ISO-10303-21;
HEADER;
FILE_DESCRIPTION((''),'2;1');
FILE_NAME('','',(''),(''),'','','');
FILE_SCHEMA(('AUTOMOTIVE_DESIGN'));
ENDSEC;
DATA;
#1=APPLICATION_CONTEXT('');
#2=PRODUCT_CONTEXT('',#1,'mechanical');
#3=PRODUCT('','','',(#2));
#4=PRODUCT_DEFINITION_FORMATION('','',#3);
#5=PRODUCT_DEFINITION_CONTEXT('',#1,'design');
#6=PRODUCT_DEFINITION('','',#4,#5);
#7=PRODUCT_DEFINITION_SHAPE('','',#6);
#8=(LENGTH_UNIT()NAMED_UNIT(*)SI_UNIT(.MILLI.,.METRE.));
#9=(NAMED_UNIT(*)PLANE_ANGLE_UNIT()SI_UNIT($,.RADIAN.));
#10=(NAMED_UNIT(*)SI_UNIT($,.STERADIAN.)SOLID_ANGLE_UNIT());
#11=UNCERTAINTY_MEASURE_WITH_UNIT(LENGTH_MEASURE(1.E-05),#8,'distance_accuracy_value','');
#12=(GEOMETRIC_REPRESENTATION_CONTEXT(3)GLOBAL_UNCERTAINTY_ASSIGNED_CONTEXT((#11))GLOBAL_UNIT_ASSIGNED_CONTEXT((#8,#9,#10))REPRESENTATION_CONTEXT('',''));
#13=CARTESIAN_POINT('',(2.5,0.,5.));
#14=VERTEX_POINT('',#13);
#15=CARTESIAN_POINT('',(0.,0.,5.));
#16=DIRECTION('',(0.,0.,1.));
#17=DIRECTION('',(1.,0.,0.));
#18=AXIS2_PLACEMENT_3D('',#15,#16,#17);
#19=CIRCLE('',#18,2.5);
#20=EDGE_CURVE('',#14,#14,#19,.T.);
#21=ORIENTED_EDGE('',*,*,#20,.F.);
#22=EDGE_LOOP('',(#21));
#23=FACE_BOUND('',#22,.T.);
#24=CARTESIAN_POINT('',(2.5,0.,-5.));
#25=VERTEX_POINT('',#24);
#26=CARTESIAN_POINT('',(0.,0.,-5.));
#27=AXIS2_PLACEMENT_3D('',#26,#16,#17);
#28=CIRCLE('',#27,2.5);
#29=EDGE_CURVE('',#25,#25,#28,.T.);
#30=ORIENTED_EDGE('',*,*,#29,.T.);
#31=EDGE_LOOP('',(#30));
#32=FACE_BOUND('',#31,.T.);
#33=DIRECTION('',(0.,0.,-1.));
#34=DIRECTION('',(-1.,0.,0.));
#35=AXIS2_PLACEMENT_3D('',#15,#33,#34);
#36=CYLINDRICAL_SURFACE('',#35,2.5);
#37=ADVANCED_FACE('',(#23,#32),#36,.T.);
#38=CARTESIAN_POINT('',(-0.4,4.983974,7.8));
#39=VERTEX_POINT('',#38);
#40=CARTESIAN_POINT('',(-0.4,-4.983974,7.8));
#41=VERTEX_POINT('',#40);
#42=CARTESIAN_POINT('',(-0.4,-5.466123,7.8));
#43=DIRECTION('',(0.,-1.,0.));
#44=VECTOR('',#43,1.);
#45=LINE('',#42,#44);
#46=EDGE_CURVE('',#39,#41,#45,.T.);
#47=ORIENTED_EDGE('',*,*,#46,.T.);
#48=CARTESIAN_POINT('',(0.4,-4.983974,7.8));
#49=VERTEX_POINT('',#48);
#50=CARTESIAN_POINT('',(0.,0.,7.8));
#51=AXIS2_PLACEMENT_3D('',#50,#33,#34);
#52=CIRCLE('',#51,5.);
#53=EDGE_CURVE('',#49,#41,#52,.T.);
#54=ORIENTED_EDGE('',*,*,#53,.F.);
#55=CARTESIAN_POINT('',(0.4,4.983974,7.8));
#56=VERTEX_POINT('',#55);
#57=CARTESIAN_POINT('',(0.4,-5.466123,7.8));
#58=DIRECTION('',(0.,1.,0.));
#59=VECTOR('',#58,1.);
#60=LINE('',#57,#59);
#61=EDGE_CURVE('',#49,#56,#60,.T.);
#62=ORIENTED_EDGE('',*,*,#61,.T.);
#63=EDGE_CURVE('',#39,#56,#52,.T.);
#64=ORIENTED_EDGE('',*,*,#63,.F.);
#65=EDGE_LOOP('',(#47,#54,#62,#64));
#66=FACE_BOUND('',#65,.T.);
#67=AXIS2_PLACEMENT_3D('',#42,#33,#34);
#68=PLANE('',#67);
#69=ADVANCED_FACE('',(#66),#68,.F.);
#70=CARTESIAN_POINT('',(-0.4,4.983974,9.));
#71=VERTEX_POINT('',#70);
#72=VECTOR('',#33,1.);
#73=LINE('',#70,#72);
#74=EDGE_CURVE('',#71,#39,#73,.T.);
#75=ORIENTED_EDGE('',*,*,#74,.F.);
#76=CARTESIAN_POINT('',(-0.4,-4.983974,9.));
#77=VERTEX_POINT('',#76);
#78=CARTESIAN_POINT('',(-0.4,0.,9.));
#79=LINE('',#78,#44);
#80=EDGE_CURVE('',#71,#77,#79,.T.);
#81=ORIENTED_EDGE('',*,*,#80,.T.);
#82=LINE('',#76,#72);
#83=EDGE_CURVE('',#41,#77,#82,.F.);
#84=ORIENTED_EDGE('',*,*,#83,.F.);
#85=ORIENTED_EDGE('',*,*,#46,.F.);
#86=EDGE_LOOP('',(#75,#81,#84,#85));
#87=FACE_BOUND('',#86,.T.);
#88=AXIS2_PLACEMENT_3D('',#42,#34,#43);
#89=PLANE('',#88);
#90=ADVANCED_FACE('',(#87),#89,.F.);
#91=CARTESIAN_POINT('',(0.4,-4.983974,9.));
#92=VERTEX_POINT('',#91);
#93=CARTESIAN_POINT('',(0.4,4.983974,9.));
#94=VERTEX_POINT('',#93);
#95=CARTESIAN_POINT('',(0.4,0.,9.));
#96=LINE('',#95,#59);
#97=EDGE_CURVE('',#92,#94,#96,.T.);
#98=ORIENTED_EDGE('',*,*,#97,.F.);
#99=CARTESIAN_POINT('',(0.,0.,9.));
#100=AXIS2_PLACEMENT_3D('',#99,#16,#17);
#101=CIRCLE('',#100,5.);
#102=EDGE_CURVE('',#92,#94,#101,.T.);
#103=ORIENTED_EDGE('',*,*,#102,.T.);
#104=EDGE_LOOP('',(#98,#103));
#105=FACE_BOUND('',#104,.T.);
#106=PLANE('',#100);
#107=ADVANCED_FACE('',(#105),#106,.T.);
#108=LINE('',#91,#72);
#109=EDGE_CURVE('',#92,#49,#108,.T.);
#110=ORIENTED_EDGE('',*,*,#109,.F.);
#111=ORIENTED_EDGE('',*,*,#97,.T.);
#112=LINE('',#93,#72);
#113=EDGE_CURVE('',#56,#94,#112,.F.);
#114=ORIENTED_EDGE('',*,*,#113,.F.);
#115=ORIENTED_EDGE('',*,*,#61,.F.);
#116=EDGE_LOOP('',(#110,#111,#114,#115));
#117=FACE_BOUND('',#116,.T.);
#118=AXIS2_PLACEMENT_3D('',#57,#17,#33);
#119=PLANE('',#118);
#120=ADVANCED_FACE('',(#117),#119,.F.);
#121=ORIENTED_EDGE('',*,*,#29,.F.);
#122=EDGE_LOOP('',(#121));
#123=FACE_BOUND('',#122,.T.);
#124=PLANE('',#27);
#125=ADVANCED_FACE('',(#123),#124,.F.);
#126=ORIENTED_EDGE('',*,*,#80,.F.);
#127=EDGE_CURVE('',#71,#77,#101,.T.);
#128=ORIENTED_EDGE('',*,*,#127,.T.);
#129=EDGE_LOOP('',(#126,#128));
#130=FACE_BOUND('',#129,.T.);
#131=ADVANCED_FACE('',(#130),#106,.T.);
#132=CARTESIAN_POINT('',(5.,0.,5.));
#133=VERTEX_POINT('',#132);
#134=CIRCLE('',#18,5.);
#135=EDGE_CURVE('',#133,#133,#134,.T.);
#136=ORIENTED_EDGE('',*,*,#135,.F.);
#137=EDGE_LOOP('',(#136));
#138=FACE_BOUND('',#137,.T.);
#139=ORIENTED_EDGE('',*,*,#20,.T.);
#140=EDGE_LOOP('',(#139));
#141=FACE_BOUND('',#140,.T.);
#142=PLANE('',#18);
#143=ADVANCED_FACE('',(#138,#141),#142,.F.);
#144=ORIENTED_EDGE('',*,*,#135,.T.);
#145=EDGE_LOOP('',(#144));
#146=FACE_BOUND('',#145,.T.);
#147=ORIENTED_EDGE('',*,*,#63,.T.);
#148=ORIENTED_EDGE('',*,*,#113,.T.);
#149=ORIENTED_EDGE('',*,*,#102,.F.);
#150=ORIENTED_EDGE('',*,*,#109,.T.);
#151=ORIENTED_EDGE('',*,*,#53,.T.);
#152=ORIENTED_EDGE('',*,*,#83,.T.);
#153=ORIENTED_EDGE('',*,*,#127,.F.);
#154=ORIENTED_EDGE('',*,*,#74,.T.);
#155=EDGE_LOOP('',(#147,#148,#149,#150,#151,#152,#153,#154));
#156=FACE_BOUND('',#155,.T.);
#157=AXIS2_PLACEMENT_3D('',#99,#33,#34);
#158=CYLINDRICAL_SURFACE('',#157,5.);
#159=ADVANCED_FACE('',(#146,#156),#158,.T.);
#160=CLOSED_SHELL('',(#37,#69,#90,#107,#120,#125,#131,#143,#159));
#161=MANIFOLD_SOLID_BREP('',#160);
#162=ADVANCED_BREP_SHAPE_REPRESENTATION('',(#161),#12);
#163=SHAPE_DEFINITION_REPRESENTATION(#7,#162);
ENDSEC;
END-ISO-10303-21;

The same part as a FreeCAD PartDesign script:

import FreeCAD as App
import Part
import Sketcher

V = App.Vector
Q = App.Units.Quantity


def add_polygon(sketch, points):
    """Adds a closed chain of lines whose ends are joined by coincident constraints."""
    first, n = sketch.GeometryCount, len(points)
    for a, b in zip(points, points[1:] + points[:1]):
        sketch.addGeometry(Part.LineSegment(App.Vector(*a, 0), App.Vector(*b, 0)), False)
    for i in range(n):
        sketch.addConstraint(Sketcher.Constraint("Coincident", first + i, 2, first + (i + 1) % n, 1))

doc = App.newDocument("Part")
body = doc.addObject("PartDesign::Body", "Body")

# Sketch on XY plane
sketch1 = body.newObject("Sketcher::SketchObject", "Sketch")
sketch1.AttachmentSupport = (doc.getObject("XY_Plane"), [""])
sketch1.MapMode = "FlatFace"
sketch1.addGeometry(Part.Circle(V(0, 0, 0), V(0, 0, 1), 2.5), False)
sketch1.addConstraint([
    Sketcher.Constraint("Coincident", 0, 3, -1, 1),
    Sketcher.Constraint("Diameter", 0, Q("5 mm")),
])
pad1 = body.newObject("PartDesign::Pad", "Pad")
pad1.Profile = sketch1
pad1.Type = "TwoLengths"
pad1.Length = 5
pad1.Length2 = 5

# Sketch on XY plane
sketch2 = body.newObject("Sketcher::SketchObject", "Sketch001")
sketch2.AttachmentSupport = (doc.getObject("XY_Plane"), [""])
sketch2.MapMode = "FlatFace"
sketch2.AttachmentOffset = App.Placement(V(0, 0, 5), App.Rotation())
sketch2.addGeometry(Part.Circle(V(0, 0, 0), V(0, 0, 1), 5), False)
sketch2.addConstraint([
    Sketcher.Constraint("Coincident", 0, 3, -1, 1),
    Sketcher.Constraint("Diameter", 0, Q("10 mm")),
])
pad2 = body.newObject("PartDesign::Pad", "Pad001")
pad2.Profile = sketch2
pad2.Length = 4

# Sketch on XY plane
sketch3 = body.newObject("Sketcher::SketchObject", "Sketch002")
sketch3.AttachmentSupport = (doc.getObject("XY_Plane"), [""])
sketch3.MapMode = "FlatFace"
sketch3.AttachmentOffset = App.Placement(V(0, 0, 9), App.Rotation())
add_polygon(sketch3, [(-0.4, 5.6), (-0.4, -5.5), (0.4, -5.5), (0.4, 5.6)])  # lines 0-3
sketch3.addConstraint([
    Sketcher.Constraint("Vertical", 0),
    Sketcher.Constraint("Horizontal", 1),
    Sketcher.Constraint("Vertical", 2),
    Sketcher.Constraint("Horizontal", 3),
    Sketcher.Constraint("DistanceX", 1, 1, 1, 2, Q("0.8 mm")),
    Sketcher.Constraint("DistanceX", 0, 2, -1, 1, Q("0.4 mm")),
    Sketcher.Constraint("DistanceY", 0, 2, 0, 1, Q("11.021006 mm")),
    Sketcher.Constraint("DistanceY", 0, 2, -1, 1, Q("5.466123 mm")),
])
pocket1 = body.newObject("PartDesign::Pocket", "Pocket")
pocket1.Profile = sketch3
pocket1.Length = 1.2

doc.recompute()
